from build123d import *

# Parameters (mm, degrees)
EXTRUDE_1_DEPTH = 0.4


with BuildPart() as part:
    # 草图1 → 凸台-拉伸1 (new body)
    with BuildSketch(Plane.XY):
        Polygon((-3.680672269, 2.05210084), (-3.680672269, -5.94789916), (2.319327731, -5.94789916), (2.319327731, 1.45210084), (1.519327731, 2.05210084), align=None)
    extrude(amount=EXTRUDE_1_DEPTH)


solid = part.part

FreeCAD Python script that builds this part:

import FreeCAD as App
import Part
import Sketcher
Q = App.Units.Quantity


def add_polygon(sketch, points):
    """Adds a closed chain of lines whose ends are joined by coincident constraints."""
    first, n = sketch.GeometryCount, len(points)
    for a, b in zip(points, points[1:] + points[:1]):
        sketch.addGeometry(Part.LineSegment(App.Vector(*a, 0), App.Vector(*b, 0)), False)
    for i in range(n):
        sketch.addConstraint(Sketcher.Constraint("Coincident", first + i, 2, first + (i + 1) % n, 1))

doc = App.newDocument("Part")
body = doc.addObject("PartDesign::Body", "Body")

sketch1 = body.newObject("Sketcher::SketchObject", "Sketch")
sketch1.AttachmentSupport = (doc.getObject("XY_Plane"), [""])
sketch1.MapMode = "FlatFace"
add_polygon(sketch1, [(-3.680672, 2.052101), (-3.680672, -5.947899), (2.319328, -5.947899), (2.319328, 1.452101), (1.519328, 2.052101)])
sketch1.addConstraint(Sketcher.Constraint("Vertical", 0))
sketch1.addConstraint(Sketcher.Constraint("Horizontal", 1))
sketch1.addConstraint(Sketcher.Constraint("Vertical", 2))
sketch1.addConstraint(Sketcher.Constraint("Horizontal", 4))
sketch1.addConstraint(Sketcher.Constraint("DistanceX", 1, 1, 1, 2, Q("6 mm")))
sketch1.addConstraint(Sketcher.Constraint("DistanceY", 0, 2, 0, 1, Q("8 mm")))
sketch1.addConstraint(Sketcher.Constraint("Distance", 3, Q("1 mm")))
sketch1.addConstraint(Sketcher.Constraint("DistanceX", 4, 2, 4, 1, Q("5.2 mm")))
sketch1.addConstraint(Sketcher.Constraint("DistanceY", 0, 2, -1, 1, Q("5.947899 mm")))
sketch1.addConstraint(Sketcher.Constraint("DistanceX", 0, 2, -1, 1, Q("3.680672 mm")))
pad1 = body.newObject("PartDesign::Pad", "Pad")
pad1.Profile = sketch1
pad1.Length = 0.4

doc.recompute()
